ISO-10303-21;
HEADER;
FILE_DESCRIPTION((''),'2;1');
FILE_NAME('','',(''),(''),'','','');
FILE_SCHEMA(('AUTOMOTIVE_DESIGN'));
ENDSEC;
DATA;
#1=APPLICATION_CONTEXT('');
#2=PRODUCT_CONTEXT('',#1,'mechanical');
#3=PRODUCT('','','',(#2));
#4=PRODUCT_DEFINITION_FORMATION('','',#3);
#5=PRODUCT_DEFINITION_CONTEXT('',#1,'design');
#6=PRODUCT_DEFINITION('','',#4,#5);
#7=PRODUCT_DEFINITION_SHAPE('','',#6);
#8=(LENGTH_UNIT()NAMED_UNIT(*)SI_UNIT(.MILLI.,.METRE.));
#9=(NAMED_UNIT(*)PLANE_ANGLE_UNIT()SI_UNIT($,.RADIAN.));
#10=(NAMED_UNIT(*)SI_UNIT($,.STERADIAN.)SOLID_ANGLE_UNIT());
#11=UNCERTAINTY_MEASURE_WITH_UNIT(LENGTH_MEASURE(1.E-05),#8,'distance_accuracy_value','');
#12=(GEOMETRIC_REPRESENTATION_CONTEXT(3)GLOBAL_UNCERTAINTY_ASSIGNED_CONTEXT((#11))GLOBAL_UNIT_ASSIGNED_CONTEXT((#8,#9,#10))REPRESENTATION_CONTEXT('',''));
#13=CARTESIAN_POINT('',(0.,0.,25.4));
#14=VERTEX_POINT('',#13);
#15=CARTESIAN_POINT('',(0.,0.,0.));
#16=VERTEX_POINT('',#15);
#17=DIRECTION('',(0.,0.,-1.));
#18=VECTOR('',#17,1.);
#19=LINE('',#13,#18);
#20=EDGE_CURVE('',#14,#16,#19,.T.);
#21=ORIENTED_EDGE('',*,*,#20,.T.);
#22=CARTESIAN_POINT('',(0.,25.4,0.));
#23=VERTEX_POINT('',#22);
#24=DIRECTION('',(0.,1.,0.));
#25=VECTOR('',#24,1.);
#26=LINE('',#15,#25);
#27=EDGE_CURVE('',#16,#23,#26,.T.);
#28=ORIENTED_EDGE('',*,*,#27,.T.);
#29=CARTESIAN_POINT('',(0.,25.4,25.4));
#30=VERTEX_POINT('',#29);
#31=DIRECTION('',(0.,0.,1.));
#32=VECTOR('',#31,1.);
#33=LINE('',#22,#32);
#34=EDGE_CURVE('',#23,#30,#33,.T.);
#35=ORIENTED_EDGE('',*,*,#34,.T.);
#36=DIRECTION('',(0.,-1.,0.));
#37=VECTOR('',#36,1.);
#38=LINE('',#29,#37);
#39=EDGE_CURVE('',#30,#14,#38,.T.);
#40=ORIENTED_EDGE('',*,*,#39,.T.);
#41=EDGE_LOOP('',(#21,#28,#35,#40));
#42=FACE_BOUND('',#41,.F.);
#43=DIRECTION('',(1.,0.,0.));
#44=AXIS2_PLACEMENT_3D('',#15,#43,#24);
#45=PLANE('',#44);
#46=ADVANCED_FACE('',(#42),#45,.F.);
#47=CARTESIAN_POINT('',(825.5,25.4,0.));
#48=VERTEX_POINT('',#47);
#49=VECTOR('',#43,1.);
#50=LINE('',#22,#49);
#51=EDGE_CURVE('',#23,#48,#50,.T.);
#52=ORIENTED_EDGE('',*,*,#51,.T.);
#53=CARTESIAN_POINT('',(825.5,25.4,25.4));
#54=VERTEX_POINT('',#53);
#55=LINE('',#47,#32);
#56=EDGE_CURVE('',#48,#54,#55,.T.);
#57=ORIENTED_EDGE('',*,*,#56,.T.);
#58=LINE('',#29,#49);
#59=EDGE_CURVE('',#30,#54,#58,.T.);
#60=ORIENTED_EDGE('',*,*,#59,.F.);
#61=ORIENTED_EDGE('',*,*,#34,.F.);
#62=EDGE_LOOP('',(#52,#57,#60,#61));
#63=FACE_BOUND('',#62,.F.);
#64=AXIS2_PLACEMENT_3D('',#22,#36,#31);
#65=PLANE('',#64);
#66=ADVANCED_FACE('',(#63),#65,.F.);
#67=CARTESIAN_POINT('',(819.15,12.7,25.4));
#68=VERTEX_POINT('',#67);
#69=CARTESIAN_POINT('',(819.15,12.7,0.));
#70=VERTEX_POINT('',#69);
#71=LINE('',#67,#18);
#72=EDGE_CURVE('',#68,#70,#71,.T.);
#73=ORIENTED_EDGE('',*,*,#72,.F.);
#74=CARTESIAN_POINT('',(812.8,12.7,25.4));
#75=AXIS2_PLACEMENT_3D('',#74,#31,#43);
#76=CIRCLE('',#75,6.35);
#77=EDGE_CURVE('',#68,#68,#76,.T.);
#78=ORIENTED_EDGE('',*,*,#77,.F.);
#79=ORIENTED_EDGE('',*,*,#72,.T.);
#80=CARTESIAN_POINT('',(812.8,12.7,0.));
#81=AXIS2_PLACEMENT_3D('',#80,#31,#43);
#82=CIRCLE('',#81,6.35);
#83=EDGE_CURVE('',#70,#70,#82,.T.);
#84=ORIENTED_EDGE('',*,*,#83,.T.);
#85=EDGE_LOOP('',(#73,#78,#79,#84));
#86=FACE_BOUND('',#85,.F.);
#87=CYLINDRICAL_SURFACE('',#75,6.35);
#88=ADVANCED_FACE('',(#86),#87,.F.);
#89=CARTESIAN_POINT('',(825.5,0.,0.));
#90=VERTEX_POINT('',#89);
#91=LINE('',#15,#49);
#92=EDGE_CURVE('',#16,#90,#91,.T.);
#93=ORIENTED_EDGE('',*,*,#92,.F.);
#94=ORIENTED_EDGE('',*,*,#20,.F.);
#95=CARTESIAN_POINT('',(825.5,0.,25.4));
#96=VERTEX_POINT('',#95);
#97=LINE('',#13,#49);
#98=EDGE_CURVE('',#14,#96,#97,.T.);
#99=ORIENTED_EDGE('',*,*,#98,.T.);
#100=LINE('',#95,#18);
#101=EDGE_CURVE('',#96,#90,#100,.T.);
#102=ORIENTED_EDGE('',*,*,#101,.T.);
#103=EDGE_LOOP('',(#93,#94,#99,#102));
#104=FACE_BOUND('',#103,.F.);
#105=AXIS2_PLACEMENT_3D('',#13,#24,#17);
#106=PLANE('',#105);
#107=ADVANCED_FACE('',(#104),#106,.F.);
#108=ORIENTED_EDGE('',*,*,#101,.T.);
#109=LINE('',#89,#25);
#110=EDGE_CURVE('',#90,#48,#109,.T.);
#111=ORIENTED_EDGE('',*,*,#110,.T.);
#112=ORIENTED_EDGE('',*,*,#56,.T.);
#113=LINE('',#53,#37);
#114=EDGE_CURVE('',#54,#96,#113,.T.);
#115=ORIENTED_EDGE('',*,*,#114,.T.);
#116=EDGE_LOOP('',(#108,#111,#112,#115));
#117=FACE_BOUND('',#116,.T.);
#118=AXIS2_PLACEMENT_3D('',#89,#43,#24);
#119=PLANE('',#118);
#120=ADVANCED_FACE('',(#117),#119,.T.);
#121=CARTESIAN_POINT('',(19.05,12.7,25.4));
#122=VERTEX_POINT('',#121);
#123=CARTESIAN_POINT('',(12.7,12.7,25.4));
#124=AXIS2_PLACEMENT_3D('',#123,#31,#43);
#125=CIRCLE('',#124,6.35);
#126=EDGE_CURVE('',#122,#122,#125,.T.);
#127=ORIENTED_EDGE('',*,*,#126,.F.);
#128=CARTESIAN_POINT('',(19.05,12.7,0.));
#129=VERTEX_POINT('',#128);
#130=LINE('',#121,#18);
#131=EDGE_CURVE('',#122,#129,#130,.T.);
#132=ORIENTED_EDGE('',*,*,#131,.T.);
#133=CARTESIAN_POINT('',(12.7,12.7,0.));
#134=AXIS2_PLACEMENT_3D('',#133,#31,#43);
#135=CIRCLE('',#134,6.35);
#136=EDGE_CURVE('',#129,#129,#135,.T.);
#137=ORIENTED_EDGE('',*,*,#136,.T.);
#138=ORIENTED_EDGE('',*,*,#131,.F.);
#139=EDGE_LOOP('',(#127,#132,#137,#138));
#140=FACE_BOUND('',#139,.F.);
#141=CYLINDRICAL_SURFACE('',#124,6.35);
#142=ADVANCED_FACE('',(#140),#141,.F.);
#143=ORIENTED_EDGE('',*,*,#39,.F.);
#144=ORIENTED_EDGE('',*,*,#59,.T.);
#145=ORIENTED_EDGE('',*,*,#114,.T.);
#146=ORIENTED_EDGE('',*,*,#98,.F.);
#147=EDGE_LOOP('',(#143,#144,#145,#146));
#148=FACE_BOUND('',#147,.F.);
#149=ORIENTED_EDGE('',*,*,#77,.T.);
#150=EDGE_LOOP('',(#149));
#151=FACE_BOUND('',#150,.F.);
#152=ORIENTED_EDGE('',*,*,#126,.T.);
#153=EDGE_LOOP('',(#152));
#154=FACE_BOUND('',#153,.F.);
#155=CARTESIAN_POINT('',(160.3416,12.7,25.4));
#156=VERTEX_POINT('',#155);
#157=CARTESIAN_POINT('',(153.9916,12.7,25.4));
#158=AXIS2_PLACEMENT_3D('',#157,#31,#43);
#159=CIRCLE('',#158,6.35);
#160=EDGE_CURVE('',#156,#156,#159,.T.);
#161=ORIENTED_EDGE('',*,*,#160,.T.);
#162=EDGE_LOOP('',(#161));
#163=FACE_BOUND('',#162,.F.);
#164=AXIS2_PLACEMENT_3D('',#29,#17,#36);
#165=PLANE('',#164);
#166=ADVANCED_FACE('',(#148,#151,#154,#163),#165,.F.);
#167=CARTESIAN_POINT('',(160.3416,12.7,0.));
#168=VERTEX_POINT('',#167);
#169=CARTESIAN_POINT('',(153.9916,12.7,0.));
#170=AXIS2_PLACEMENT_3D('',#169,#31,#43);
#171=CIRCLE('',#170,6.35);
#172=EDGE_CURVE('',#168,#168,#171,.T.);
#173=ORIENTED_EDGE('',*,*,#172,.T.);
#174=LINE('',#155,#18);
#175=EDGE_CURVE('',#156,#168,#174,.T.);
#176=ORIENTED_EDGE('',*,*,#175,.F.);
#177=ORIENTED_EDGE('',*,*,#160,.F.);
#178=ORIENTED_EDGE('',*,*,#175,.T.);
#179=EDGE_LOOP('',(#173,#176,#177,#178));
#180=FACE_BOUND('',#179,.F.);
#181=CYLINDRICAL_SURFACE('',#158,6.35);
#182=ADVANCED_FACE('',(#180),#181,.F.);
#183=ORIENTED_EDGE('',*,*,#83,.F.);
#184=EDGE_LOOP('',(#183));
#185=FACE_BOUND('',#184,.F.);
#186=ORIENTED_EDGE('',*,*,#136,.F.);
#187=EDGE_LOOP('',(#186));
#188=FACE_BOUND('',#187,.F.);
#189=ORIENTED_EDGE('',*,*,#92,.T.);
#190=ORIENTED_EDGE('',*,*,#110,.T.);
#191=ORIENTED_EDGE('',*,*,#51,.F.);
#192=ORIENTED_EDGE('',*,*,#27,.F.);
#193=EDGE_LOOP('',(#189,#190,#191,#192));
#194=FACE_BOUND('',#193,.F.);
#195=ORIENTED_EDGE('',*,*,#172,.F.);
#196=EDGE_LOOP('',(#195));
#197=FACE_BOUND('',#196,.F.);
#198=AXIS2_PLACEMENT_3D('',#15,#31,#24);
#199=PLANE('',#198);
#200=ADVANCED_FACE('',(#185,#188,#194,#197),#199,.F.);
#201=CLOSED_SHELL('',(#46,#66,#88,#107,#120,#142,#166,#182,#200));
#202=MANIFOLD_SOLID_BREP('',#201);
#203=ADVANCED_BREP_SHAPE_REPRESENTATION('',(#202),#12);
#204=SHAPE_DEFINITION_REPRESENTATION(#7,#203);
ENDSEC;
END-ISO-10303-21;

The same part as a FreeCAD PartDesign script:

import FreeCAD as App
import Part
import Sketcher

V = App.Vector
Q = App.Units.Quantity


def add_polygon(sketch, points):
    """Adds a closed chain of lines whose ends are joined by coincident constraints."""
    first, n = sketch.GeometryCount, len(points)
    for a, b in zip(points, points[1:] + points[:1]):
        sketch.addGeometry(Part.LineSegment(App.Vector(*a, 0), App.Vector(*b, 0)), False)
    for i in range(n):
        sketch.addConstraint(Sketcher.Constraint("Coincident", first + i, 2, first + (i + 1) % n, 1))

doc = App.newDocument("Part")
body = doc.addObject("PartDesign::Body", "Body")

# Sketch on YZ plane
sketch1 = body.newObject("Sketcher::SketchObject", "Sketch")
sketch1.AttachmentSupport = (doc.getObject("YZ_Plane"), [""])
sketch1.MapMode = "FlatFace"
add_polygon(sketch1, [(0, 25.4), (0, 0), (25.4, 0), (25.4, 25.4)])  # lines 0-3
sketch1.addConstraint(Sketcher.Constraint("Vertical", 0))
sketch1.addConstraint(Sketcher.Constraint("Horizontal", 1))
sketch1.addConstraint(Sketcher.Constraint("Vertical", 2))
sketch1.addConstraint(Sketcher.Constraint("Horizontal", 3))
sketch1.addConstraint(Sketcher.Constraint("Coincident", 0, 2, -1, 1))
sketch1.addConstraint(Sketcher.Constraint("Equal", 3, 0))
sketch1.addConstraint(Sketcher.Constraint("DistanceX", 1, 1, 1, 2, Q("1 in")))
pad1 = body.newObject("PartDesign::Pad", "Pad")
pad1.Profile = sketch1
pad1.Length = Q("32.5 in")

# Sketch on XY plane
sketch2 = body.newObject("Sketcher::SketchObject", "Sketch001")
sketch2.AttachmentSupport = (doc.getObject("XY_Plane"), [""])
sketch2.MapMode = "FlatFace"
sketch2.AttachmentOffset = App.Placement(V(0, 0, 1 * 25.4), App.Rotation())
sketch2.addGeometry(Part.Circle(V(12.7, 12.7, 0), V(0, 0, 1), 6.35), False)
sketch2.addGeometry(Part.Circle(V(812.8, 12.7, 0), V(0, 0, 1), 6.35), False)
sketch2.addGeometry(Part.Circle(V(153.9916, 12.7, 0), V(0, 0, 1), 6.35), False)
sketch2.addConstraint(Sketcher.Constraint("Equal", 0, 1))
sketch2.addConstraint(Sketcher.Constraint("Equal", 1, 2))
sketch2.addConstraint(Sketcher.Constraint("Horizontal", 0, 3, 1, 3))
sketch2.addConstraint(Sketcher.Constraint("Horizontal", 1, 3, 2, 3))
sketch2.addConstraint(Sketcher.Constraint("Diameter", 0, Q("0.5 in")))
sketch2.addConstraint(Sketcher.Constraint("DistanceX", -1, 1, 0, 3, Q("0.5 in")))
sketch2.addConstraint(Sketcher.Constraint("DistanceY", -1, 1, 0, 3, Q("0.5 in")))
sketch2.addConstraint(Sketcher.Constraint("DistanceX", -1, 1, 1, 3, Q("32 in")))
sketch2.addConstraint(Sketcher.Constraint("DistanceX", -1, 1, 2, 3, Q("153.9916 mm")))
pocket1 = body.newObject("PartDesign::Pocket", "Pocket")
pocket1.Profile = sketch2
pocket1.Length = Q("40 in")

doc.recompute()
